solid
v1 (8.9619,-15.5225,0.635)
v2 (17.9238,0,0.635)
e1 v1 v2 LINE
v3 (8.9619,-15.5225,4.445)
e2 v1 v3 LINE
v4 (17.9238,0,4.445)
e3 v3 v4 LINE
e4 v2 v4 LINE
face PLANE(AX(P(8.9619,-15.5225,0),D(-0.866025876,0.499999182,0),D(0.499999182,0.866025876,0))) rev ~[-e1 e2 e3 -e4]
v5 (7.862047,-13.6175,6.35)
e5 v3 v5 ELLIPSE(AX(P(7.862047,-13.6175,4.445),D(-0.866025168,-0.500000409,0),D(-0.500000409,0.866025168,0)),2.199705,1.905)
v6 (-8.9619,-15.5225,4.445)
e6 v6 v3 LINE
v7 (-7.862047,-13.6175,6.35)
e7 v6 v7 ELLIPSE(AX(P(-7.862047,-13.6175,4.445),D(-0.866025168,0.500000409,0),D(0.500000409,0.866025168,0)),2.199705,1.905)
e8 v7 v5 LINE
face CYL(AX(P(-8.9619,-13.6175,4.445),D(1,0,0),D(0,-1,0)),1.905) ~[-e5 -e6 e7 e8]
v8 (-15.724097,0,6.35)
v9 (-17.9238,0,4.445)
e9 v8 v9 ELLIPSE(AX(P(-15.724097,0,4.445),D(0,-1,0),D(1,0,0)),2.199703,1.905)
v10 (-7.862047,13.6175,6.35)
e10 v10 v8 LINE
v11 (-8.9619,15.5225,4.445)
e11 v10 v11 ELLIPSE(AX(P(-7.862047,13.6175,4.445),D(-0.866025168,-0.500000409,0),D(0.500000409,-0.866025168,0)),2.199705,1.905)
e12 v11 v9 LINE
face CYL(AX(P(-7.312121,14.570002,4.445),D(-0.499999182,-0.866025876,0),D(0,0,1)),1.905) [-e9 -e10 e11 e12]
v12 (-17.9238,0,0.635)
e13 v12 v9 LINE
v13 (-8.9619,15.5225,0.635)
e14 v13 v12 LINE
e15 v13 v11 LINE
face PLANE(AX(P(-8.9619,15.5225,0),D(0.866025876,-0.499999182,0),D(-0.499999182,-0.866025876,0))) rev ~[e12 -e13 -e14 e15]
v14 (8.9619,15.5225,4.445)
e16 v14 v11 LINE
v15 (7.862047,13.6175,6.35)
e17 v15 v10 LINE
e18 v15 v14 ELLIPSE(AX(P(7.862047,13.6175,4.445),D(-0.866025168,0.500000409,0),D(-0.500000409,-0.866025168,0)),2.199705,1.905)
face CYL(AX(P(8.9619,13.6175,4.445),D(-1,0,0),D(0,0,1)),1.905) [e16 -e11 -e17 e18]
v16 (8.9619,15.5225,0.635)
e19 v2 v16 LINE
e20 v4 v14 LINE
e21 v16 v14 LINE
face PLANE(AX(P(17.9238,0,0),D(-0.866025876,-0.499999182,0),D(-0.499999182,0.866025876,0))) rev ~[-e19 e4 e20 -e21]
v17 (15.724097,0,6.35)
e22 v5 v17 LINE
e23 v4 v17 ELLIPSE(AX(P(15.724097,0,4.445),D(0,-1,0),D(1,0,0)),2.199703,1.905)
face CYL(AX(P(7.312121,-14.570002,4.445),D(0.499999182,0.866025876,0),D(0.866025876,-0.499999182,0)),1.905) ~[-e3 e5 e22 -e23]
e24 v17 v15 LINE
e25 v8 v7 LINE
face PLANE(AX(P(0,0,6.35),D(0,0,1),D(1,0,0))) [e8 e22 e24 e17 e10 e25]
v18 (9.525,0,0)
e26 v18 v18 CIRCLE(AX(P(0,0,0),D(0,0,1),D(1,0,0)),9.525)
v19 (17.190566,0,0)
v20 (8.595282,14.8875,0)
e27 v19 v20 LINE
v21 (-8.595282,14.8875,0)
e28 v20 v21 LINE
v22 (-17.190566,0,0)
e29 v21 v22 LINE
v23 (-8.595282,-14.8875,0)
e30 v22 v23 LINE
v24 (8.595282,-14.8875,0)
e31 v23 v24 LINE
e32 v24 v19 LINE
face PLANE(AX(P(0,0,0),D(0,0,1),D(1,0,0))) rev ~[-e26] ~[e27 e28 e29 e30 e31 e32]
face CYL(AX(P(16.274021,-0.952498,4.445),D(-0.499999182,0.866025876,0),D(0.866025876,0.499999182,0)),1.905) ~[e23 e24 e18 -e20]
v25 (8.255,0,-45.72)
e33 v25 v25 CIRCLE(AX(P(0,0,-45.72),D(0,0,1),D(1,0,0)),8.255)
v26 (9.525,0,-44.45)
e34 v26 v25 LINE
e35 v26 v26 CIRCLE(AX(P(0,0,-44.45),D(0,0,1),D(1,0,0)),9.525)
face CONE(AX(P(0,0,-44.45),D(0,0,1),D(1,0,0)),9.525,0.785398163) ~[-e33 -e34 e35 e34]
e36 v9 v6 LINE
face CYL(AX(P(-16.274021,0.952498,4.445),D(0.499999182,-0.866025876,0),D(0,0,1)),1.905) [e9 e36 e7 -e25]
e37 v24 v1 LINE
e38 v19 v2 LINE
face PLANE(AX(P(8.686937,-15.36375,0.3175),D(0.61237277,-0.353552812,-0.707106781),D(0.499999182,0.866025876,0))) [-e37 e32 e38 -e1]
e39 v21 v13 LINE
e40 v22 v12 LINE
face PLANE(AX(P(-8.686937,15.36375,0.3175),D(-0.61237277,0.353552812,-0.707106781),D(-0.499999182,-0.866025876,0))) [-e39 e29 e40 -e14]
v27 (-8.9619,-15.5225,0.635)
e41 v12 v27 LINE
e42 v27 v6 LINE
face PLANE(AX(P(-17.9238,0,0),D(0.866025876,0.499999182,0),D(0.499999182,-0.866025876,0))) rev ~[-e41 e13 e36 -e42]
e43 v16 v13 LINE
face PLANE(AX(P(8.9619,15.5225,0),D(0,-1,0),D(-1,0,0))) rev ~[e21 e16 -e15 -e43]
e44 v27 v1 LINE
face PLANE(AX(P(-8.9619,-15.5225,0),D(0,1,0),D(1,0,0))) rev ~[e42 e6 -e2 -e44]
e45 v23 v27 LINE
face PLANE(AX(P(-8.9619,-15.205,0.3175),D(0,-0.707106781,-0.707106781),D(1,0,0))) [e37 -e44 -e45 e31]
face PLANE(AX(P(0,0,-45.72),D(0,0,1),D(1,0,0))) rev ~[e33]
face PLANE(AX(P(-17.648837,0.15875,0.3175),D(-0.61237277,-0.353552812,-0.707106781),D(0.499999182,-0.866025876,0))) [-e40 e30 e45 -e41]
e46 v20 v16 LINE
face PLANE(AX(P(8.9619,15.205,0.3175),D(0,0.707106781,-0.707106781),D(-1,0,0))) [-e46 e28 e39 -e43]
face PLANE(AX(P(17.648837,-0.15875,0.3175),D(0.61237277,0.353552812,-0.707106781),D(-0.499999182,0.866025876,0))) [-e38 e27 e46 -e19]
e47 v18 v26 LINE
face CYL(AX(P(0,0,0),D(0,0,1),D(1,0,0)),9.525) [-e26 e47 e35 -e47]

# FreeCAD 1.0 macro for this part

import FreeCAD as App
import Part
import Sketcher
from FreeCAD import Vector
Q = App.Units.Quantity


def edges_at(feature, points):
    """Names of the edges that pass closest to the given points."""
    edges = feature.Shape.Edges
    near = lambda p: min(range(len(edges)), key=lambda i: edges[i].distToShape(Part.Vertex(*p))[0])
    return sorted({f"Edge{near(p) + 1}" for p in points})

doc = App.newDocument("Part")
body = doc.addObject("PartDesign::Body", "Body")

sketch1 = body.newObject("Sketcher::SketchObject", "Sketch")
sketch1.AttachmentSupport = (doc.getObject("XY_Plane"), [""])
sketch1.MapMode = "FlatFace"
sketch1.addGeometry(Part.Circle(Vector(0, 0, 0), Vector(0, 0, 1), 10), False)
sketch1.addConstraint([
    Sketcher.Constraint("Coincident", 0, 3, -1, 1),
    Sketcher.Constraint("Diameter", 0, Q("0.75 in")),
])
pad1 = body.newObject("PartDesign::Pad", "Pad")
pad1.Profile = sketch1
pad1.Length = Q("1.8 in")
pad1.Reversed = True

sketch2 = body.newObject("Sketcher::SketchObject", "Sketch001")
sketch2.AttachmentSupport = (doc.getObject("XY_Plane"), [""])
sketch2.MapMode = "FlatFace"
sketch2.addGeometry([
    Part.LineSegment(Vector(-9, -16, 0), Vector(9, -16, 0)),
    Part.LineSegment(Vector(9, -16, 0), Vector(18, 0, 0)),
    Part.LineSegment(Vector(18, 0, 0), Vector(9, 16, 0)),
    Part.LineSegment(Vector(9, 16, 0), Vector(-9, 16, 0)),
    Part.LineSegment(Vector(-9, 16, 0), Vector(-18, 0, 0)),
    Part.LineSegment(Vector(-18, 0, 0), Vector(-9, -16, 0)),
], False)
sketch2.addConstraint([
    Sketcher.Constraint("Coincident", 0, 2, 1, 1),
    Sketcher.Constraint("Coincident", 1, 2, 2, 1),
    Sketcher.Constraint("Coincident", 2, 2, 3, 1),
    Sketcher.Constraint("Coincident", 3, 2, 4, 1),
    Sketcher.Constraint("Coincident", 4, 2, 5, 1),
    Sketcher.Constraint("Coincident", 5, 2, 0, 1),
    Sketcher.Constraint("Horizontal", 0),
    Sketcher.Constraint("Horizontal", 3),
    Sketcher.Constraint("Symmetric", 0, 2, 3, 2, -1, 1),
    Sketcher.Constraint("Symmetric", 1, 2, 4, 2, -1, 1),
    Sketcher.Constraint("PointOnObject", 1, 2, -1),
    Sketcher.Constraint("Parallel", 2, 5),
    Sketcher.Constraint("Vertical", 0, 2, 2, 2),
    Sketcher.Constraint("Angle", 1, Q("60 deg")),
    Sketcher.Constraint("DistanceX", 0, 1, 0, 2, Q("17.9238 mm")),
    Sketcher.Constraint("DistanceX", 3, 2, 1, 2, Q("1.0585 in")),
])
pad2 = body.newObject("PartDesign::Pad", "Pad001")
pad2.Profile = sketch2
pad2.Length = Q("0.25 in")
doc.recompute()

fillet = body.newObject("PartDesign::Fillet", "Fillet")
fillet.Base = (pad2, edges_at(pad2, [
    (13.443, -7.761, 6.35),
    (0, -15.523, 6.35),
    (-13.443, -7.761, 6.35),
    (-13.443, 7.761, 6.35),
    (0, 15.523, 6.35),
    (13.443, 7.761, 6.35),
]))
fillet.Radius = Q("0.075 in")
doc.recompute()

chamfer = body.newObject("PartDesign::Chamfer", "Chamfer")
chamfer.Base = (fillet, edges_at(fillet, [(-9.525, 0, -45.72)]))
chamfer.Size = Q("0.05 in")
doc.recompute()

chamfer2 = body.newObject("PartDesign::Chamfer", "Chamfer001")
chamfer2.Base = (chamfer, edges_at(chamfer, [
    (-13.443, -7.761, 0),
    (-13.443, 7.761, 0),
    (0, 15.523, 0),
    (13.443, 7.761, 0),
    (13.443, -7.761, 0),
    (0, -15.523, 0),
]))
chamfer2.Size = Q("0.025 in")

doc.recompute()
